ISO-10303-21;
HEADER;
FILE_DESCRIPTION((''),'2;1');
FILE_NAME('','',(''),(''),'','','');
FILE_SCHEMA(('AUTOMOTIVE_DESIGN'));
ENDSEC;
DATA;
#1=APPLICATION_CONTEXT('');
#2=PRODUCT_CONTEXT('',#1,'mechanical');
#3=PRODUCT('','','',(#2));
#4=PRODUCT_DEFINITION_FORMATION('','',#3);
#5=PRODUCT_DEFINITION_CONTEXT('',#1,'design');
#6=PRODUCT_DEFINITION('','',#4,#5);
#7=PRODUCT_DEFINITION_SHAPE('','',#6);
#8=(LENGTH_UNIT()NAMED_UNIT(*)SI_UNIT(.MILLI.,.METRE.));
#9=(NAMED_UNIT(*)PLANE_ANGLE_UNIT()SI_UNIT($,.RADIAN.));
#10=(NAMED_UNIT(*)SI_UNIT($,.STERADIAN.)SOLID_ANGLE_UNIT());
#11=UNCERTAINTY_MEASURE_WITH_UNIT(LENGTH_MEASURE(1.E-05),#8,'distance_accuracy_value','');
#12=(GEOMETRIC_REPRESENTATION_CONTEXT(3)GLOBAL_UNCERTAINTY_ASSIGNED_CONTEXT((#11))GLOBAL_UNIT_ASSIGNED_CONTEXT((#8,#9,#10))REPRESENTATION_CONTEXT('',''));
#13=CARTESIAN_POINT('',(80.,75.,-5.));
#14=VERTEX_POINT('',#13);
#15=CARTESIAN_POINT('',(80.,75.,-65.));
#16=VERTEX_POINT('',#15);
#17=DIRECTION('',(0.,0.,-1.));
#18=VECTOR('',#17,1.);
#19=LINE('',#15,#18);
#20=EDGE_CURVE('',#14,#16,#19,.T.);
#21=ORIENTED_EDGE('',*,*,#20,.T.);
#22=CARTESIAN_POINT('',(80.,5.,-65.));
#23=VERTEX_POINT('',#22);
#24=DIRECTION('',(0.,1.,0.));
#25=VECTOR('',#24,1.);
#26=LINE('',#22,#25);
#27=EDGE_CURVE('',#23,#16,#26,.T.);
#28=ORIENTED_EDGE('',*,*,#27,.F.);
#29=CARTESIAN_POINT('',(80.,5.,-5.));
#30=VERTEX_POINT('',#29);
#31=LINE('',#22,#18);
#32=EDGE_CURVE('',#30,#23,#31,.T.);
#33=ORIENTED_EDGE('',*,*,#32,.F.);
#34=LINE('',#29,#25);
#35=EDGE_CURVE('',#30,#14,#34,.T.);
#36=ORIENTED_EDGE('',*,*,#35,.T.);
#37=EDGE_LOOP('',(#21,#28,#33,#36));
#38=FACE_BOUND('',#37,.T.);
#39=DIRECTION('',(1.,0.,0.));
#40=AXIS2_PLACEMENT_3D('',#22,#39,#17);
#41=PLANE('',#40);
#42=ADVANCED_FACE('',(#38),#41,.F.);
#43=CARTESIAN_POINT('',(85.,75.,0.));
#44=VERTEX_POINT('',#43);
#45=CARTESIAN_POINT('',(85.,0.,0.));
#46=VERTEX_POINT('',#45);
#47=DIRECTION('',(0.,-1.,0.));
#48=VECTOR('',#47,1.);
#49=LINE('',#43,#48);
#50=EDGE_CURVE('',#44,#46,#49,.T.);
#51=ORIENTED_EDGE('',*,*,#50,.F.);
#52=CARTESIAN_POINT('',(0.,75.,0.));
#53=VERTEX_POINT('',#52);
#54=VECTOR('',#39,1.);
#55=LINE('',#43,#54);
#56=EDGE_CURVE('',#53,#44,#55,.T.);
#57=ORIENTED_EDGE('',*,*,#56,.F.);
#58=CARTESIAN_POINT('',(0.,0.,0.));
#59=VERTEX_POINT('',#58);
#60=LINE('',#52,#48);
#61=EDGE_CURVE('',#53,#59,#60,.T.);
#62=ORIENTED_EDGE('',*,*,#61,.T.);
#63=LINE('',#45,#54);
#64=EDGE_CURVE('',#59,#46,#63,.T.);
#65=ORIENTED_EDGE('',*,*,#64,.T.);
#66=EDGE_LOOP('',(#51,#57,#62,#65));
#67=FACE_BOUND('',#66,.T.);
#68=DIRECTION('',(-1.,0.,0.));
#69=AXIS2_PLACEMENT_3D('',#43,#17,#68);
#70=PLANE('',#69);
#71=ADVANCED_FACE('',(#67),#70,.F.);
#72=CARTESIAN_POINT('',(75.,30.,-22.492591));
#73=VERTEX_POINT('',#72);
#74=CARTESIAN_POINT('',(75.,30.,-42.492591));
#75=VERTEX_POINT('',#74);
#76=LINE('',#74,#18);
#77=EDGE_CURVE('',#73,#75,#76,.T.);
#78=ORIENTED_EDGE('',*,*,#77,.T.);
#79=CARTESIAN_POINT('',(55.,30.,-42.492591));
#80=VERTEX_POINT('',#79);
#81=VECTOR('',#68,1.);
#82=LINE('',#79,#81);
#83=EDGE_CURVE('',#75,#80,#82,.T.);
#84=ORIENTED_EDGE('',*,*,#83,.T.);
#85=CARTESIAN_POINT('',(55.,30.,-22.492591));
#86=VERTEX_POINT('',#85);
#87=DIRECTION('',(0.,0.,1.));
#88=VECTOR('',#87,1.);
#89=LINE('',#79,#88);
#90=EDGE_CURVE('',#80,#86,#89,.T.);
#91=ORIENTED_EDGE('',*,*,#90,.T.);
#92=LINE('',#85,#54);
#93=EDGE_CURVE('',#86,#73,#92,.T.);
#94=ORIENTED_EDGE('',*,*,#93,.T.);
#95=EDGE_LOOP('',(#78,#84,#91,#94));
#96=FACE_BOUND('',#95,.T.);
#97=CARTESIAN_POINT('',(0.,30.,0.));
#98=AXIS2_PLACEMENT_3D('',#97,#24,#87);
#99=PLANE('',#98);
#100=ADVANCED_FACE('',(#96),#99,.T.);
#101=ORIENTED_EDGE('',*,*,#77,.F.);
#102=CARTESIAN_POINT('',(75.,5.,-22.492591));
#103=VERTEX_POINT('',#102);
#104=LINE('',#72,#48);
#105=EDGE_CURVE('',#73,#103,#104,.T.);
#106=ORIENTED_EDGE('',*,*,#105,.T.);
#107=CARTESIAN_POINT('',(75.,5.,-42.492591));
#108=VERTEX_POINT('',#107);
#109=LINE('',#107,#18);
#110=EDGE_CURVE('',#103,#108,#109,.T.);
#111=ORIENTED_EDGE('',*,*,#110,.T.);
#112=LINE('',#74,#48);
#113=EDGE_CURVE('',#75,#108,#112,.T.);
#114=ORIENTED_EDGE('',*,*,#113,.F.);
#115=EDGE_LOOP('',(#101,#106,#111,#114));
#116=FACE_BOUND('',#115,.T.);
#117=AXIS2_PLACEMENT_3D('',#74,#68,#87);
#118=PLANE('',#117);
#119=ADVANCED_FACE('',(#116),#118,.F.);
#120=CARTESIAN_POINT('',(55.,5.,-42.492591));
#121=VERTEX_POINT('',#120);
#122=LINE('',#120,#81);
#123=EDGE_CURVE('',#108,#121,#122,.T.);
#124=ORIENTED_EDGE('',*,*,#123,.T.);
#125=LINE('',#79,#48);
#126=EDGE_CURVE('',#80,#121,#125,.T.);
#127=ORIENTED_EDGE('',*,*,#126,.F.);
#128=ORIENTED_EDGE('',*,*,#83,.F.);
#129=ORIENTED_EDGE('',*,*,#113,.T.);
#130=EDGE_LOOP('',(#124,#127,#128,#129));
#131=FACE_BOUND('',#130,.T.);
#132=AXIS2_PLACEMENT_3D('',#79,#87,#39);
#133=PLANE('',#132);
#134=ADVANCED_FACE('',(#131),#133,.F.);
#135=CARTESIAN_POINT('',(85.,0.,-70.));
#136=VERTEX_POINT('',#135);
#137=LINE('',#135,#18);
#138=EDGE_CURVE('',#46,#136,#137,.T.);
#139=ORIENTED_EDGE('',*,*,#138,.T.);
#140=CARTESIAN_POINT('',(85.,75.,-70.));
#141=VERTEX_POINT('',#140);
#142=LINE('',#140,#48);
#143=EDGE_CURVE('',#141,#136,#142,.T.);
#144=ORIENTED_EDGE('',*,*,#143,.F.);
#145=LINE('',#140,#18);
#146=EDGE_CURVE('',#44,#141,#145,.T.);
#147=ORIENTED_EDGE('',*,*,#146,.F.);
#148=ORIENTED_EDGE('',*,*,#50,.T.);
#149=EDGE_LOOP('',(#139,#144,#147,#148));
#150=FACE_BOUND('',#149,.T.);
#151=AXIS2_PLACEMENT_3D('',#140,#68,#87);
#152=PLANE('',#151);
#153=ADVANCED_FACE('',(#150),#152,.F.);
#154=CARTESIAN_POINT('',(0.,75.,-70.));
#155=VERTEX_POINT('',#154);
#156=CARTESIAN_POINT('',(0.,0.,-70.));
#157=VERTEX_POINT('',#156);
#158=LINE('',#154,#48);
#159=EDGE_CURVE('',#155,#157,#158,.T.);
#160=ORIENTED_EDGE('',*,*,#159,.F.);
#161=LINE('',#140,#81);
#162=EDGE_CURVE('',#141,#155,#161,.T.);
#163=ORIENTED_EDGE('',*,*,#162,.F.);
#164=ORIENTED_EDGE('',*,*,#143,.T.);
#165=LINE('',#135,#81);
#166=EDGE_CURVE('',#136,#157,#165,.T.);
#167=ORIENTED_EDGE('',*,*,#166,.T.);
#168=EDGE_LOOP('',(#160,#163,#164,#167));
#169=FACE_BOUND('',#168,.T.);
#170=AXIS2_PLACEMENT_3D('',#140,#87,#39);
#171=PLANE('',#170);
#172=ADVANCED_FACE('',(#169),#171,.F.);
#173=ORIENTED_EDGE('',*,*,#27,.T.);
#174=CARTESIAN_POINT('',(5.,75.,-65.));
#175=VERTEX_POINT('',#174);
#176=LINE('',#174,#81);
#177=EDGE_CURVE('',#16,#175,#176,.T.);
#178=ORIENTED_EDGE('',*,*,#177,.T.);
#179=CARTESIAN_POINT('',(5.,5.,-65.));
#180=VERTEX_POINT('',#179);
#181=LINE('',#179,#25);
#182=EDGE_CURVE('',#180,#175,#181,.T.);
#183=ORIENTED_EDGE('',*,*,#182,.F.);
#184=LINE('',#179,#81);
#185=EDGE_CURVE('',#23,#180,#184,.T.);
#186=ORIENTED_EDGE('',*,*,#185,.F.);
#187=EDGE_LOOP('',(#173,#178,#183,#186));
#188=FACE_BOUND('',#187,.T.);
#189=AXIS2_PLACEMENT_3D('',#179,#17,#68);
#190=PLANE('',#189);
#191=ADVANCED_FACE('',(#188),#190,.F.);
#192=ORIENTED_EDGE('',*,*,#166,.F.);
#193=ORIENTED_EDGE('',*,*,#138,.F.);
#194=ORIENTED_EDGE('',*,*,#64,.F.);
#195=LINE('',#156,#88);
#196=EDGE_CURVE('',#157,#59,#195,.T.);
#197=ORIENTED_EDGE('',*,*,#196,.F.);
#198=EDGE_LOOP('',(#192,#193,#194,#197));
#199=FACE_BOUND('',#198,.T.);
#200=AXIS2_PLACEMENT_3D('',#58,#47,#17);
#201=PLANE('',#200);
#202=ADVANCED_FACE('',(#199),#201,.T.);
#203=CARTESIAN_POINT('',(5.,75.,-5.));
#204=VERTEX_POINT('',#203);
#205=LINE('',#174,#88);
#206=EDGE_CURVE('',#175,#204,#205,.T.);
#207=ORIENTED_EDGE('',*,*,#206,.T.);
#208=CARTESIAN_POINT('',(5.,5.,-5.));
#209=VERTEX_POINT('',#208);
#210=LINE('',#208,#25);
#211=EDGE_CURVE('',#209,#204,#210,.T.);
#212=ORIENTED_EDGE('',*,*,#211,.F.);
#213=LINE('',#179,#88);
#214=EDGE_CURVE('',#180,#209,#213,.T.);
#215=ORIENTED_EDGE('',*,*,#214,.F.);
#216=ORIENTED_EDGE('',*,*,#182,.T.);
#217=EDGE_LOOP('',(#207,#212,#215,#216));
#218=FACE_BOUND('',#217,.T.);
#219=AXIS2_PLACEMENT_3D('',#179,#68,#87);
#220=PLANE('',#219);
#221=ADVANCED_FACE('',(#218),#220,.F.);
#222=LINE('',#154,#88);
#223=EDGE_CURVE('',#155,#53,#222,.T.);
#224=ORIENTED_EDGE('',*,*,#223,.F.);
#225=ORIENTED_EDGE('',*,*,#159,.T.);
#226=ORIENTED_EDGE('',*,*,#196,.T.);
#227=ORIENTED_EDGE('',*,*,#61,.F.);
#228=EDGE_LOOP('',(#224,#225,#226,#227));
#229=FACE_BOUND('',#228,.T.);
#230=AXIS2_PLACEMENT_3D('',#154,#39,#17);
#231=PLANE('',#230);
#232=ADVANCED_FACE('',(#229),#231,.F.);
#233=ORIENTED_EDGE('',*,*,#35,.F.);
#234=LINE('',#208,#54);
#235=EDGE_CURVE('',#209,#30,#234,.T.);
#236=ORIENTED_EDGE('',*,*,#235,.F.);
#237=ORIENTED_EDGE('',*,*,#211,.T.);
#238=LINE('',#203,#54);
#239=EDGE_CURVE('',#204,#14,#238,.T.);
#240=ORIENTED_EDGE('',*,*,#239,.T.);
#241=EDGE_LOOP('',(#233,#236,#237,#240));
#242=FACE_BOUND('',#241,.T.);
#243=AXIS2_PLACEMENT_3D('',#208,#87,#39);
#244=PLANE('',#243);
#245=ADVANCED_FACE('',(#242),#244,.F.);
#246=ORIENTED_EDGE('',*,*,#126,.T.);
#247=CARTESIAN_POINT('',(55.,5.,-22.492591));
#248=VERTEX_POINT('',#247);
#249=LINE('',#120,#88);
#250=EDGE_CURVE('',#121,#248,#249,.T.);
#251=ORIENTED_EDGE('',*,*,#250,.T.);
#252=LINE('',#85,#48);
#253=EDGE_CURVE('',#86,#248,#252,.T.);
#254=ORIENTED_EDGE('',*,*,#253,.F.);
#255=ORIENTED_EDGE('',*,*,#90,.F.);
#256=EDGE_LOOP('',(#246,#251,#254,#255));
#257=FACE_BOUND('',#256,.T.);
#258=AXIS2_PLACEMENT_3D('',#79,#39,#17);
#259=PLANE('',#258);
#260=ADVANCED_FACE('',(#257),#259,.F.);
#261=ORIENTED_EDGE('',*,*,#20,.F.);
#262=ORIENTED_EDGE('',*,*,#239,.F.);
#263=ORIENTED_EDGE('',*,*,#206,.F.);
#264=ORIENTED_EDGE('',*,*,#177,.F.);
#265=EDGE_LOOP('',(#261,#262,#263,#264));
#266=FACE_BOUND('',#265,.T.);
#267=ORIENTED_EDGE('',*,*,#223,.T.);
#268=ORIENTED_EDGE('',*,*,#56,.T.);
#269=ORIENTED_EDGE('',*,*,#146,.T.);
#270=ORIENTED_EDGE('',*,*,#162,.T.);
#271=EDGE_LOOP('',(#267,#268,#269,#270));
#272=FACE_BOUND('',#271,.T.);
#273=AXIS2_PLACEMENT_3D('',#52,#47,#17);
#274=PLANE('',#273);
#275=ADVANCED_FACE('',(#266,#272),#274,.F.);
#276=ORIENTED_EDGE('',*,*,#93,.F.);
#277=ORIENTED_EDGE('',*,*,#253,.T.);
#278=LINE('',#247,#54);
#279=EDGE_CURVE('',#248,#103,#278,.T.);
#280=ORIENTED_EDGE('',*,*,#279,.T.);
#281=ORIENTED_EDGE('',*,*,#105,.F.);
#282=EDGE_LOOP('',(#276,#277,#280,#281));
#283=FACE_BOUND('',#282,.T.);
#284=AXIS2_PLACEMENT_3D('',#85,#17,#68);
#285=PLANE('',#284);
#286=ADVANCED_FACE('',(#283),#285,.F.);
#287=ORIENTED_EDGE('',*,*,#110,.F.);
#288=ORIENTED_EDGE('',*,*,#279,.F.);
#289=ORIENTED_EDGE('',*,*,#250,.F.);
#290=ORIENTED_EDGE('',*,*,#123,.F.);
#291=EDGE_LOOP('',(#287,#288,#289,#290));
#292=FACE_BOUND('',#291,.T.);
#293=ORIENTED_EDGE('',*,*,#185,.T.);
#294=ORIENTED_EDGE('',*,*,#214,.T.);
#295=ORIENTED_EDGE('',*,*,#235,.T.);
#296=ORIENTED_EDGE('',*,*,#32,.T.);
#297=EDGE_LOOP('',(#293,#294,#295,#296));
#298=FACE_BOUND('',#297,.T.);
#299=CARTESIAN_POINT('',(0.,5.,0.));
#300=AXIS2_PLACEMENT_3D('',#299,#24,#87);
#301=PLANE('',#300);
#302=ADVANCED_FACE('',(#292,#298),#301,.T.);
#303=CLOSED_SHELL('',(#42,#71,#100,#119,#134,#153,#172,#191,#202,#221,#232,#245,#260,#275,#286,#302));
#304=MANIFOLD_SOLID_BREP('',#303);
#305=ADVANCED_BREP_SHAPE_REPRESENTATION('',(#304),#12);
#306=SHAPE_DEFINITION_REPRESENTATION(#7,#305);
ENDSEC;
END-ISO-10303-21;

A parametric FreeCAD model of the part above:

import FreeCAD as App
import Part
import Sketcher

V = App.Vector
Q = App.Units.Quantity


def add_polygon(sketch, points):
    """Adds a closed chain of lines whose ends are joined by coincident constraints."""
    first, n = sketch.GeometryCount, len(points)
    for a, b in zip(points, points[1:] + points[:1]):
        sketch.addGeometry(Part.LineSegment(App.Vector(*a, 0), App.Vector(*b, 0)), False)
    for i in range(n):
        sketch.addConstraint(Sketcher.Constraint("Coincident", first + i, 2, first + (i + 1) % n, 1))

doc = App.newDocument("Part")
params = doc.addObject("Spreadsheet::Sheet", "Params")
for row, (alias, value) in enumerate([
    ("sketch1_width", "85 mm"),
    ("sketch1_height", "70 mm"),
    ("pad1_length", "75 mm"),
    ("sketch2_width", "75 mm"),
    ("sketch2_height", "60 mm"),
    ("pocket1_length", "70 mm"),
    ("sketch3_width", "20 mm"),
    ("pad2_length", "25 mm"),
], start=1):
    params.set(f"A{row}", alias)
    params.set(f"B{row}", "=" + value)
    params.setAlias(f"B{row}", alias)

body = doc.addObject("PartDesign::Body", "Body")

# Sketch on XZ plane
sketch1 = body.newObject("Sketcher::SketchObject", "Sketch")
sketch1.AttachmentSupport = (doc.getObject("XZ_Plane"), [""])
sketch1.MapMode = "FlatFace"
add_polygon(sketch1, [(0, -70), (0, 0), (85, 0), (85, -70)])  # lines 0-3
sketch1.addConstraint([
    Sketcher.Constraint("Vertical", 0),
    Sketcher.Constraint("Horizontal", 1),
    Sketcher.Constraint("Vertical", 2),
    Sketcher.Constraint("Horizontal", 3),
    Sketcher.Constraint("Coincident", 0, 2, -1, 1),
    Sketcher.Constraint("DistanceX", 1, 1, 1, 2, Q("85 mm")),
    Sketcher.Constraint("DistanceY", 0, 1, 0, 2, Q("70 mm")),
])
sketch1.setExpression("Constraints[9]", "Params.sketch1_width")
sketch1.setExpression("Constraints[10]", "Params.sketch1_height")
pad1 = body.newObject("PartDesign::Pad", "Pad")
pad1.Profile = sketch1
pad1.setExpression("Length", "Params.pad1_length")
pad1.Reversed = True

# Sketch on XZ plane
sketch2 = body.newObject("Sketcher::SketchObject", "Sketch001")
sketch2.AttachmentSupport = (doc.getObject("XZ_Plane"), [""])
sketch2.MapMode = "FlatFace"
sketch2.AttachmentOffset = App.Placement(V(0, 0, -75), App.Rotation())
add_polygon(sketch2, [(5, -65), (5, -5), (80, -5), (80, -65)])  # lines 0-3
sketch2.addConstraint([
    Sketcher.Constraint("Vertical", 0),
    Sketcher.Constraint("Horizontal", 1),
    Sketcher.Constraint("Vertical", 2),
    Sketcher.Constraint("Horizontal", 3),
    Sketcher.Constraint("DistanceX", 1, 1, 1, 2, Q("75 mm")),
    Sketcher.Constraint("DistanceY", 0, 1, 0, 2, Q("60 mm")),
    Sketcher.Constraint("DistanceX", -1, 1, 0, 2, Q("5 mm")),
    Sketcher.Constraint("DistanceY", 0, 2, -1, 1, Q("5 mm")),
])
sketch2.setExpression("Constraints[8]", "Params.sketch2_width")
sketch2.setExpression("Constraints[9]", "Params.sketch2_height")
pocket1 = body.newObject("PartDesign::Pocket", "Pocket")
pocket1.Profile = sketch2
pocket1.setExpression("Length", "Params.pocket1_length")
pocket1.Reversed = True

# Sketch on XZ plane
sketch3 = body.newObject("Sketcher::SketchObject", "Sketch002")
sketch3.AttachmentSupport = (doc.getObject("XZ_Plane"), [""])
sketch3.MapMode = "FlatFace"
sketch3.AttachmentOffset = App.Placement(V(0, 0, -5), App.Rotation())
add_polygon(sketch3, [(55, -42), (55, -22), (75, -22), (75, -42)])  # lines 0-3
sketch3.addConstraint([
    Sketcher.Constraint("Vertical", 0),
    Sketcher.Constraint("Horizontal", 1),
    Sketcher.Constraint("Vertical", 2),
    Sketcher.Constraint("Horizontal", 3),
    Sketcher.Constraint("Equal", 3, 0),
    Sketcher.Constraint("DistanceX", 1, 1, 1, 2, Q("20 mm")),
    Sketcher.Constraint("DistanceX", -1, 1, 0, 2, Q("55 mm")),
    Sketcher.Constraint("DistanceY", 0, 2, -1, 1, Q("22.492591 mm")),
])
sketch3.setExpression("Constraints[9]", "Params.sketch3_width")
pad2 = body.newObject("PartDesign::Pad", "Pad001")
pad2.Profile = sketch3
pad2.setExpression("Length", "Params.pad2_length")
pad2.Reversed = True

doc.recompute()
